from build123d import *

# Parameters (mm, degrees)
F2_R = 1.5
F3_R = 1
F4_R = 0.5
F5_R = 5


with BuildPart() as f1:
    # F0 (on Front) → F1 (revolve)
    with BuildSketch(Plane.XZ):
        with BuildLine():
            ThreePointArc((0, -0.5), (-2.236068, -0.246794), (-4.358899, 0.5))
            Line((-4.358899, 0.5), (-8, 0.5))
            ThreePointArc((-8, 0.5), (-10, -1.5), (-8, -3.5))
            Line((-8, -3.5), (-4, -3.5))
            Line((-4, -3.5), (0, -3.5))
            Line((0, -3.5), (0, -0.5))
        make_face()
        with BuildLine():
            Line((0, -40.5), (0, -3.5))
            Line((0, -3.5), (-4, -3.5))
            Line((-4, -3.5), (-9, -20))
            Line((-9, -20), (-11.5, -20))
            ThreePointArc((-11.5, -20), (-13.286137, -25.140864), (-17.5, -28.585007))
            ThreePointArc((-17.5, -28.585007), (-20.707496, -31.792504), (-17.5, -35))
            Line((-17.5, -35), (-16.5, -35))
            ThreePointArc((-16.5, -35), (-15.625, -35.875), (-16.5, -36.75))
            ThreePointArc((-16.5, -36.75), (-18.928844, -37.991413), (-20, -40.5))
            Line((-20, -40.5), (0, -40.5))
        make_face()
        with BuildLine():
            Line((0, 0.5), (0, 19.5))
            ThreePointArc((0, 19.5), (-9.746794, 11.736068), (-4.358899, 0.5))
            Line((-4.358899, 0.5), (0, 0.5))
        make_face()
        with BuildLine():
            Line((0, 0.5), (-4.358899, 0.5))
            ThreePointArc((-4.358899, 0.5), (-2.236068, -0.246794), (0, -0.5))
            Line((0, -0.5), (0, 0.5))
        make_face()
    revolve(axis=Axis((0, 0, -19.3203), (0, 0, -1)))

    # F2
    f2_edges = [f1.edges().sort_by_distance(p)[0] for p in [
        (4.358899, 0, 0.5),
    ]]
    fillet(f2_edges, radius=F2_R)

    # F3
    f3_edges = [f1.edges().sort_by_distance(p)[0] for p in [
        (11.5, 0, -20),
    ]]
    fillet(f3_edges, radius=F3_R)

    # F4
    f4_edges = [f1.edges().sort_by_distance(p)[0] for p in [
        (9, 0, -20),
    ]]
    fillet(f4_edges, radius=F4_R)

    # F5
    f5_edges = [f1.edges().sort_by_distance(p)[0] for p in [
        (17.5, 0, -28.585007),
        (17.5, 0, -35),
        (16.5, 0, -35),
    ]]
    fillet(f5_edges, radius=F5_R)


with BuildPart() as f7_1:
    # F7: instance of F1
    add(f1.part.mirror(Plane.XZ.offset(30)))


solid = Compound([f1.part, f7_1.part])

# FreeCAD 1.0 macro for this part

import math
import FreeCAD as App
import Part
import Sketcher
Q = App.Units.Quantity


def edges_at(feature, points):
    """Names of the edges that pass closest to the given points."""
    edges = feature.Shape.Edges
    near = lambda p: min(range(len(edges)), key=lambda i: edges[i].distToShape(Part.Vertex(*p))[0])
    return sorted({f"Edge{near(p) + 1}" for p in points})

doc = App.newDocument("Part")
body = doc.addObject("PartDesign::Body", "Body")

sketch1 = body.newObject("Sketcher::SketchObject", "Sketch")
sketch1.AttachmentSupport = (doc.getObject("XZ_Plane"), [""])
sketch1.MapMode = "FlatFace"
sketch1.addGeometry(Part.LineSegment(App.Vector(-4.4, 0.5, 0), App.Vector(-8, 0.5, 0)), False)
sketch1.addGeometry(Part.ArcOfCircle(Part.Circle(App.Vector(-8, -1.5, 0), App.Vector(0, 0, 1), 2), math.radians(90), math.radians(270)), False)
sketch1.addGeometry(Part.LineSegment(App.Vector(-8, -3.5, 0), App.Vector(-4, -3.5, 0)), False)
sketch1.addGeometry(Part.LineSegment(App.Vector(-4, -3.5, 0), App.Vector(-9, -20, 0)), False)
sketch1.addGeometry(Part.LineSegment(App.Vector(-9, -20, 0), App.Vector(-11.5, -20, 0)), False)
sketch1.addGeometry(Part.ArcOfCircle(Part.Circle(App.Vector(-21.5, -19.4, 0), App.Vector(0, 0, 1), 10), math.radians(-67), math.radians(-3)), False)
sketch1.addGeometry(Part.ArcOfCircle(Part.Circle(App.Vector(-17.5, -31.8, 0), App.Vector(0, 0, 1), 3.2), math.radians(90), math.radians(270)), False)
sketch1.addGeometry(Part.LineSegment(App.Vector(-17.5, -35, 0), App.Vector(-16.5, -35, 0)), False)
sketch1.addGeometry(Part.ArcOfCircle(Part.Circle(App.Vector(-16.5, -35.9, 0), App.Vector(0, 0, 1), 0.9), math.radians(-90), math.radians(90)), False)
sketch1.addGeometry(Part.ArcOfCircle(Part.Circle(App.Vector(-16, -40.7, 0), App.Vector(0, 0, 1), 4), math.radians(97), math.radians(177)), False)
sketch1.addGeometry(Part.LineSegment(App.Vector(-20, -40.5, 0), App.Vector(0, -40.5, 0)), False)
sketch1.addGeometry(Part.LineSegment(App.Vector(0, -40.5, 0), App.Vector(0, 19.5, 0)), False)
sketch1.addGeometry(Part.ArcOfCircle(Part.Circle(App.Vector(0, 9.5, 0), App.Vector(0, 0, 1), 10), math.radians(90), math.radians(244)), False)
sketch1.addConstraint(Sketcher.Constraint("Tangent", 0, 2, 1, 1))
sketch1.addConstraint(Sketcher.Constraint("Tangent", 1, 2, 2, 1))
sketch1.addConstraint(Sketcher.Constraint("Coincident", 2, 2, 3, 1))
sketch1.addConstraint(Sketcher.Constraint("Coincident", 3, 2, 4, 1))
sketch1.addConstraint(Sketcher.Constraint("Coincident", 4, 2, 5, 2))
sketch1.addConstraint(Sketcher.Constraint("Coincident", 5, 1, 6, 1))
sketch1.addConstraint(Sketcher.Constraint("Tangent", 6, 2, 7, 1))
sketch1.addConstraint(Sketcher.Constraint("Tangent", 7, 2, 8, 2))
sketch1.addConstraint(Sketcher.Constraint("Coincident", 8, 1, 9, 1))
sketch1.addConstraint(Sketcher.Constraint("Coincident", 9, 2, 10, 1))
sketch1.addConstraint(Sketcher.Constraint("Coincident", 10, 2, 11, 1))
sketch1.addConstraint(Sketcher.Constraint("Coincident", 11, 2, 12, 1))
sketch1.addConstraint(Sketcher.Constraint("Coincident", 12, 2, 0, 1))
sketch1.addConstraint(Sketcher.Constraint("Horizontal", 0))
sketch1.addConstraint(Sketcher.Constraint("Horizontal", 2))
sketch1.addConstraint(Sketcher.Constraint("Horizontal", 4))
sketch1.addConstraint(Sketcher.Constraint("Horizontal", 7))
sketch1.addConstraint(Sketcher.Constraint("Horizontal", 10))
sketch1.addConstraint(Sketcher.Constraint("Vertical", 11))
sketch1.addConstraint(Sketcher.Constraint("Equal", 5, 12))
sketch1.addConstraint(Sketcher.Constraint("PointOnObject", 12, 3, -2))
sketch1.addConstraint(Sketcher.Constraint("PointOnObject", 10, 2, -2))
sketch1.addConstraint(Sketcher.Constraint("Vertical", 6, 3, 5, 1))
sketch1.addConstraint(Sketcher.Constraint("Vertical", 7, 2, 8, 1))
sketch1.addConstraint(Sketcher.Constraint("Radius", 1, Q("2 mm")))
sketch1.addConstraint(Sketcher.Constraint("Radius", 5, Q("9.999998 mm")))
sketch1.addConstraint(Sketcher.Constraint("DistanceX", 2, 1, 2, 2, Q("4 mm")))
sketch1.addConstraint(Sketcher.Constraint("DistanceX", 7, 1, 7, 2, Q("1 mm")))
sketch1.addConstraint(Sketcher.Constraint("DistanceX", 10, 1, 10, 2, Q("20 mm")))
sketch1.addConstraint(Sketcher.Constraint("DistanceY", 11, 1, 11, 2, Q("60 mm")))
sketch1.addConstraint(Sketcher.Constraint("DistanceX", 4, 2, 4, 1, Q("2.5 mm")))
sketch1.addConstraint(Sketcher.Constraint("DistanceX", 1, 3, -1, 1, Q("8 mm")))
sketch1.addConstraint(Sketcher.Constraint("DistanceX", 9, 3, -1, 1, Q("16 mm")))
sketch1.addConstraint(Sketcher.Constraint("DistanceX", 3, 2, -1, 1, Q("9 mm")))
sketch1.addConstraint(Sketcher.Constraint("DistanceY", 3, 2, -1, 1, Q("20 mm")))
sketch1.addConstraint(Sketcher.Constraint("DistanceY", 6, 2, -1, 1, Q("35 mm")))
sketch1.addConstraint(Sketcher.Constraint("Radius", 8, Q("0.875 mm")))
sketch1.addConstraint(Sketcher.Constraint("DistanceY", 1, 3, 12, 3, Q("11 mm")))
sketch1.addConstraint(Sketcher.Constraint("DistanceX", 6, 3, 4, 2, Q("6 mm")))
sketch1.addConstraint(Sketcher.Constraint("DistanceY", 1, 3, -1, 1, Q("1.5 mm")))
sketch1.addConstraint(Sketcher.Constraint("Radius", 6, Q("3.207496 mm")))
revolution = body.newObject("PartDesign::Revolution", "Revolution")
revolution.Profile = sketch1
revolution.ReferenceAxis = (sketch1, ["V_Axis"])
revolution.Angle = 360
doc.recompute()

fillet = body.newObject("PartDesign::Fillet", "Fillet")
fillet.Base = (revolution, edges_at(revolution, [(4.359, 0, 0.5)]))
fillet.Radius = 1.5
doc.recompute()

fillet2 = body.newObject("PartDesign::Fillet", "Fillet001")
fillet2.Base = (fillet, edges_at(fillet, [(11.5, 0, -20)]))
fillet2.Radius = 1
doc.recompute()

fillet3 = body.newObject("PartDesign::Fillet", "Fillet002")
fillet3.Base = (fillet2, edges_at(fillet2, [(9, 0, -20)]))
fillet3.Radius = 0.5
doc.recompute()

fillet4 = body.newObject("PartDesign::Fillet", "Fillet003")
fillet4.Base = (fillet3, edges_at(fillet3, [(17.5, 0, -28.585), (17.5, 0, -35), (16.5, 0, -35)]))
fillet4.Radius = 5
body2 = doc.addObject("PartDesign::Body", "Body001")
doc.recompute()

mirroring = doc.addObject("Part::Mirroring", "Mirroring")
mirroring.Source = body
mirroring.Base = App.Vector(0, -30, 0)
mirroring.Normal = App.Vector(0, -1, 0)
body2.BaseFeature = mirroring
doc.recompute()
mirroring.Visibility = False

doc.recompute()
